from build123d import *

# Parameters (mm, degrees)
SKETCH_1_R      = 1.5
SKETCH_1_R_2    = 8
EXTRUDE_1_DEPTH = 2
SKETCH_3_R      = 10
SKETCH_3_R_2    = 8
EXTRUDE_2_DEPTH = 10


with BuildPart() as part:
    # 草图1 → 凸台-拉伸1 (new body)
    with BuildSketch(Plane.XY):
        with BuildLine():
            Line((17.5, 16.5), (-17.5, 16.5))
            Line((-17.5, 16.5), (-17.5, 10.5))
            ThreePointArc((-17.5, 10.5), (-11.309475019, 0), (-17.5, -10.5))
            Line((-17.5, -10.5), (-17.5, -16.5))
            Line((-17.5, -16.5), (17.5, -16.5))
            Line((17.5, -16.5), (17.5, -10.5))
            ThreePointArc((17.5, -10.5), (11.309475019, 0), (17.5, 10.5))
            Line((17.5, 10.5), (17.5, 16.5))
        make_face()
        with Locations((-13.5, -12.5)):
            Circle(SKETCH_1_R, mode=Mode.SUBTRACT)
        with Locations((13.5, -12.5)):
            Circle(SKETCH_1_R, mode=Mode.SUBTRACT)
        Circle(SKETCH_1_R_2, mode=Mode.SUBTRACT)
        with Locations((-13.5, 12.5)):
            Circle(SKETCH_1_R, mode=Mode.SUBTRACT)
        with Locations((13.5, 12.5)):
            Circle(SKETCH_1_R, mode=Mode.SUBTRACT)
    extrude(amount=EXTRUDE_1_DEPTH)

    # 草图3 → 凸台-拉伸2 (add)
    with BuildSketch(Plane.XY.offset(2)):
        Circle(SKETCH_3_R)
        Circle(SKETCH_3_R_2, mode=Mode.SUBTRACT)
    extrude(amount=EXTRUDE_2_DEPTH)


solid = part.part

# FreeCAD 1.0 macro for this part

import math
import FreeCAD as App
import Part
import Sketcher

doc = App.newDocument("Part")
body = doc.addObject("PartDesign::Body", "Body")

# Sketch on XY plane
sketch1 = body.newObject("Sketcher::SketchObject", "Sketch")
sketch1.AttachmentSupport = (doc.getObject("XY_Plane"), [""])
sketch1.MapMode = "FlatFace"
sketch1.addGeometry([
    Part.LineSegment(App.Vector(17.5, 16.5, 0), App.Vector(-17.5, 16.5, 0)),  # 0
    Part.LineSegment(App.Vector(-17.5, 16.5, 0), App.Vector(-17.5, 10.5, 0)),  # 1
    Part.ArcOfCircle(Part.Circle(App.Vector(-23.3, 0, 0), App.Vector(0, 0, 1), 12), math.radians(-61), math.radians(61)),  # 2
    Part.LineSegment(App.Vector(-17.5, -10.5, 0), App.Vector(-17.5, -16.5, 0)),  # 3
    Part.LineSegment(App.Vector(-17.5, -16.5, 0), App.Vector(17.5, -16.5, 0)),  # 4
    Part.LineSegment(App.Vector(17.5, -16.5, 0), App.Vector(17.5, -10.5, 0)),  # 5
    Part.ArcOfCircle(Part.Circle(App.Vector(23.3, 0, 0), App.Vector(0, 0, 1), 12), math.radians(119), math.radians(241)),  # 6
    Part.LineSegment(App.Vector(17.5, 10.5, 0), App.Vector(17.5, 16.5, 0)),  # 7
    Part.Circle(App.Vector(-13.5, -12.5, 0), App.Vector(0, 0, 1), 1.5),  # 8
    Part.Circle(App.Vector(13.5, -12.5, 0), App.Vector(0, 0, 1), 1.5),  # 9
    Part.Circle(App.Vector(-13.5, 12.5, 0), App.Vector(0, 0, 1), 1.5),  # 10
    Part.Circle(App.Vector(0, 0, 0), App.Vector(0, 0, 1), 8),  # 11
    Part.Circle(App.Vector(13.5, 12.5, 0), App.Vector(0, 0, 1), 1.5),  # 12
], False)
sketch1.addConstraint([
    Sketcher.Constraint("Coincident", 0, 2, 1, 1),
    Sketcher.Constraint("Coincident", 1, 2, 2, 2),
    Sketcher.Constraint("Coincident", 2, 1, 3, 1),
    Sketcher.Constraint("Coincident", 3, 2, 4, 1),
    Sketcher.Constraint("Coincident", 4, 2, 5, 1),
    Sketcher.Constraint("Coincident", 5, 2, 6, 2),
    Sketcher.Constraint("Coincident", 6, 1, 7, 1),
    Sketcher.Constraint("Coincident", 7, 2, 0, 1),
    Sketcher.Constraint("Horizontal", 0),
    Sketcher.Constraint("Vertical", 1),
    Sketcher.Constraint("Vertical", 3),
    Sketcher.Constraint("Horizontal", 4),
    Sketcher.Constraint("Vertical", 5),
    Sketcher.Constraint("Vertical", 7),
    Sketcher.Constraint("Coincident", 11, 3, -1, 1),
    Sketcher.Constraint("Equal", 2, 6),
    Sketcher.Constraint("Equal", 8, 9),
    Sketcher.Constraint("Equal", 9, 10),
    Sketcher.Constraint("Equal", 10, 12),
    Sketcher.Constraint("Symmetric", 2, 3, 6, 3, -1, 1),
    Sketcher.Constraint("Symmetric", 9, 3, 10, 3, -1, 1),
    Sketcher.Constraint("Symmetric", 8, 3, 12, 3, -1, 1),
    Sketcher.Constraint("Symmetric", 0, 2, 4, 2, -1, 1),
    Sketcher.Constraint("Symmetric", 8, 3, 9, 3, -2),
    Sketcher.Constraint("Symmetric", 2, 1, 5, 2, -2),
    Sketcher.Constraint("Horizontal", 1, 2, 6, 1),
    Sketcher.Constraint("Diameter", 8, 3.0),
    Sketcher.Constraint("Diameter", 11, 16.0),
    Sketcher.Constraint("Radius", 2, 12.0),
    Sketcher.Constraint("DistanceX", 0, 2, 0, 1, 35.0),
    Sketcher.Constraint("DistanceY", 1, 2, 1, 1, 6.0),
    Sketcher.Constraint("DistanceX", 8, 3, 9, 3, 27.0),
    Sketcher.Constraint("DistanceY", 8, 3, 10, 3, 25.0),
    Sketcher.Constraint("DistanceY", 10, 3, 0, 2, 4.0),
])
pad1 = body.newObject("PartDesign::Pad", "Pad")
pad1.Profile = sketch1
pad1.Length = 2

# Sketch on XY plane
sketch2 = body.newObject("Sketcher::SketchObject", "Sketch001")
sketch2.AttachmentSupport = (doc.getObject("XY_Plane"), [""])
sketch2.MapMode = "FlatFace"
sketch2.AttachmentOffset = App.Placement(App.Vector(0, 0, 2), App.Rotation())
sketch2.addGeometry([
    Part.Circle(App.Vector(0, 0, 0), App.Vector(0, 0, 1), 10),
    Part.Circle(App.Vector(0, 0, 0), App.Vector(0, 0, 1), 8),
], False)
sketch2.addConstraint([
    Sketcher.Constraint("Coincident", 0, 3, -1, 1),
    Sketcher.Constraint("Coincident", 1, 3, -1, 1),
    Sketcher.Constraint("Diameter", 0, 20.0),
    Sketcher.Constraint("Diameter", 1, 16.0),
])
pad2 = body.newObject("PartDesign::Pad", "Pad001")
pad2.Profile = sketch2
pad2.Length = 10

doc.recompute()
